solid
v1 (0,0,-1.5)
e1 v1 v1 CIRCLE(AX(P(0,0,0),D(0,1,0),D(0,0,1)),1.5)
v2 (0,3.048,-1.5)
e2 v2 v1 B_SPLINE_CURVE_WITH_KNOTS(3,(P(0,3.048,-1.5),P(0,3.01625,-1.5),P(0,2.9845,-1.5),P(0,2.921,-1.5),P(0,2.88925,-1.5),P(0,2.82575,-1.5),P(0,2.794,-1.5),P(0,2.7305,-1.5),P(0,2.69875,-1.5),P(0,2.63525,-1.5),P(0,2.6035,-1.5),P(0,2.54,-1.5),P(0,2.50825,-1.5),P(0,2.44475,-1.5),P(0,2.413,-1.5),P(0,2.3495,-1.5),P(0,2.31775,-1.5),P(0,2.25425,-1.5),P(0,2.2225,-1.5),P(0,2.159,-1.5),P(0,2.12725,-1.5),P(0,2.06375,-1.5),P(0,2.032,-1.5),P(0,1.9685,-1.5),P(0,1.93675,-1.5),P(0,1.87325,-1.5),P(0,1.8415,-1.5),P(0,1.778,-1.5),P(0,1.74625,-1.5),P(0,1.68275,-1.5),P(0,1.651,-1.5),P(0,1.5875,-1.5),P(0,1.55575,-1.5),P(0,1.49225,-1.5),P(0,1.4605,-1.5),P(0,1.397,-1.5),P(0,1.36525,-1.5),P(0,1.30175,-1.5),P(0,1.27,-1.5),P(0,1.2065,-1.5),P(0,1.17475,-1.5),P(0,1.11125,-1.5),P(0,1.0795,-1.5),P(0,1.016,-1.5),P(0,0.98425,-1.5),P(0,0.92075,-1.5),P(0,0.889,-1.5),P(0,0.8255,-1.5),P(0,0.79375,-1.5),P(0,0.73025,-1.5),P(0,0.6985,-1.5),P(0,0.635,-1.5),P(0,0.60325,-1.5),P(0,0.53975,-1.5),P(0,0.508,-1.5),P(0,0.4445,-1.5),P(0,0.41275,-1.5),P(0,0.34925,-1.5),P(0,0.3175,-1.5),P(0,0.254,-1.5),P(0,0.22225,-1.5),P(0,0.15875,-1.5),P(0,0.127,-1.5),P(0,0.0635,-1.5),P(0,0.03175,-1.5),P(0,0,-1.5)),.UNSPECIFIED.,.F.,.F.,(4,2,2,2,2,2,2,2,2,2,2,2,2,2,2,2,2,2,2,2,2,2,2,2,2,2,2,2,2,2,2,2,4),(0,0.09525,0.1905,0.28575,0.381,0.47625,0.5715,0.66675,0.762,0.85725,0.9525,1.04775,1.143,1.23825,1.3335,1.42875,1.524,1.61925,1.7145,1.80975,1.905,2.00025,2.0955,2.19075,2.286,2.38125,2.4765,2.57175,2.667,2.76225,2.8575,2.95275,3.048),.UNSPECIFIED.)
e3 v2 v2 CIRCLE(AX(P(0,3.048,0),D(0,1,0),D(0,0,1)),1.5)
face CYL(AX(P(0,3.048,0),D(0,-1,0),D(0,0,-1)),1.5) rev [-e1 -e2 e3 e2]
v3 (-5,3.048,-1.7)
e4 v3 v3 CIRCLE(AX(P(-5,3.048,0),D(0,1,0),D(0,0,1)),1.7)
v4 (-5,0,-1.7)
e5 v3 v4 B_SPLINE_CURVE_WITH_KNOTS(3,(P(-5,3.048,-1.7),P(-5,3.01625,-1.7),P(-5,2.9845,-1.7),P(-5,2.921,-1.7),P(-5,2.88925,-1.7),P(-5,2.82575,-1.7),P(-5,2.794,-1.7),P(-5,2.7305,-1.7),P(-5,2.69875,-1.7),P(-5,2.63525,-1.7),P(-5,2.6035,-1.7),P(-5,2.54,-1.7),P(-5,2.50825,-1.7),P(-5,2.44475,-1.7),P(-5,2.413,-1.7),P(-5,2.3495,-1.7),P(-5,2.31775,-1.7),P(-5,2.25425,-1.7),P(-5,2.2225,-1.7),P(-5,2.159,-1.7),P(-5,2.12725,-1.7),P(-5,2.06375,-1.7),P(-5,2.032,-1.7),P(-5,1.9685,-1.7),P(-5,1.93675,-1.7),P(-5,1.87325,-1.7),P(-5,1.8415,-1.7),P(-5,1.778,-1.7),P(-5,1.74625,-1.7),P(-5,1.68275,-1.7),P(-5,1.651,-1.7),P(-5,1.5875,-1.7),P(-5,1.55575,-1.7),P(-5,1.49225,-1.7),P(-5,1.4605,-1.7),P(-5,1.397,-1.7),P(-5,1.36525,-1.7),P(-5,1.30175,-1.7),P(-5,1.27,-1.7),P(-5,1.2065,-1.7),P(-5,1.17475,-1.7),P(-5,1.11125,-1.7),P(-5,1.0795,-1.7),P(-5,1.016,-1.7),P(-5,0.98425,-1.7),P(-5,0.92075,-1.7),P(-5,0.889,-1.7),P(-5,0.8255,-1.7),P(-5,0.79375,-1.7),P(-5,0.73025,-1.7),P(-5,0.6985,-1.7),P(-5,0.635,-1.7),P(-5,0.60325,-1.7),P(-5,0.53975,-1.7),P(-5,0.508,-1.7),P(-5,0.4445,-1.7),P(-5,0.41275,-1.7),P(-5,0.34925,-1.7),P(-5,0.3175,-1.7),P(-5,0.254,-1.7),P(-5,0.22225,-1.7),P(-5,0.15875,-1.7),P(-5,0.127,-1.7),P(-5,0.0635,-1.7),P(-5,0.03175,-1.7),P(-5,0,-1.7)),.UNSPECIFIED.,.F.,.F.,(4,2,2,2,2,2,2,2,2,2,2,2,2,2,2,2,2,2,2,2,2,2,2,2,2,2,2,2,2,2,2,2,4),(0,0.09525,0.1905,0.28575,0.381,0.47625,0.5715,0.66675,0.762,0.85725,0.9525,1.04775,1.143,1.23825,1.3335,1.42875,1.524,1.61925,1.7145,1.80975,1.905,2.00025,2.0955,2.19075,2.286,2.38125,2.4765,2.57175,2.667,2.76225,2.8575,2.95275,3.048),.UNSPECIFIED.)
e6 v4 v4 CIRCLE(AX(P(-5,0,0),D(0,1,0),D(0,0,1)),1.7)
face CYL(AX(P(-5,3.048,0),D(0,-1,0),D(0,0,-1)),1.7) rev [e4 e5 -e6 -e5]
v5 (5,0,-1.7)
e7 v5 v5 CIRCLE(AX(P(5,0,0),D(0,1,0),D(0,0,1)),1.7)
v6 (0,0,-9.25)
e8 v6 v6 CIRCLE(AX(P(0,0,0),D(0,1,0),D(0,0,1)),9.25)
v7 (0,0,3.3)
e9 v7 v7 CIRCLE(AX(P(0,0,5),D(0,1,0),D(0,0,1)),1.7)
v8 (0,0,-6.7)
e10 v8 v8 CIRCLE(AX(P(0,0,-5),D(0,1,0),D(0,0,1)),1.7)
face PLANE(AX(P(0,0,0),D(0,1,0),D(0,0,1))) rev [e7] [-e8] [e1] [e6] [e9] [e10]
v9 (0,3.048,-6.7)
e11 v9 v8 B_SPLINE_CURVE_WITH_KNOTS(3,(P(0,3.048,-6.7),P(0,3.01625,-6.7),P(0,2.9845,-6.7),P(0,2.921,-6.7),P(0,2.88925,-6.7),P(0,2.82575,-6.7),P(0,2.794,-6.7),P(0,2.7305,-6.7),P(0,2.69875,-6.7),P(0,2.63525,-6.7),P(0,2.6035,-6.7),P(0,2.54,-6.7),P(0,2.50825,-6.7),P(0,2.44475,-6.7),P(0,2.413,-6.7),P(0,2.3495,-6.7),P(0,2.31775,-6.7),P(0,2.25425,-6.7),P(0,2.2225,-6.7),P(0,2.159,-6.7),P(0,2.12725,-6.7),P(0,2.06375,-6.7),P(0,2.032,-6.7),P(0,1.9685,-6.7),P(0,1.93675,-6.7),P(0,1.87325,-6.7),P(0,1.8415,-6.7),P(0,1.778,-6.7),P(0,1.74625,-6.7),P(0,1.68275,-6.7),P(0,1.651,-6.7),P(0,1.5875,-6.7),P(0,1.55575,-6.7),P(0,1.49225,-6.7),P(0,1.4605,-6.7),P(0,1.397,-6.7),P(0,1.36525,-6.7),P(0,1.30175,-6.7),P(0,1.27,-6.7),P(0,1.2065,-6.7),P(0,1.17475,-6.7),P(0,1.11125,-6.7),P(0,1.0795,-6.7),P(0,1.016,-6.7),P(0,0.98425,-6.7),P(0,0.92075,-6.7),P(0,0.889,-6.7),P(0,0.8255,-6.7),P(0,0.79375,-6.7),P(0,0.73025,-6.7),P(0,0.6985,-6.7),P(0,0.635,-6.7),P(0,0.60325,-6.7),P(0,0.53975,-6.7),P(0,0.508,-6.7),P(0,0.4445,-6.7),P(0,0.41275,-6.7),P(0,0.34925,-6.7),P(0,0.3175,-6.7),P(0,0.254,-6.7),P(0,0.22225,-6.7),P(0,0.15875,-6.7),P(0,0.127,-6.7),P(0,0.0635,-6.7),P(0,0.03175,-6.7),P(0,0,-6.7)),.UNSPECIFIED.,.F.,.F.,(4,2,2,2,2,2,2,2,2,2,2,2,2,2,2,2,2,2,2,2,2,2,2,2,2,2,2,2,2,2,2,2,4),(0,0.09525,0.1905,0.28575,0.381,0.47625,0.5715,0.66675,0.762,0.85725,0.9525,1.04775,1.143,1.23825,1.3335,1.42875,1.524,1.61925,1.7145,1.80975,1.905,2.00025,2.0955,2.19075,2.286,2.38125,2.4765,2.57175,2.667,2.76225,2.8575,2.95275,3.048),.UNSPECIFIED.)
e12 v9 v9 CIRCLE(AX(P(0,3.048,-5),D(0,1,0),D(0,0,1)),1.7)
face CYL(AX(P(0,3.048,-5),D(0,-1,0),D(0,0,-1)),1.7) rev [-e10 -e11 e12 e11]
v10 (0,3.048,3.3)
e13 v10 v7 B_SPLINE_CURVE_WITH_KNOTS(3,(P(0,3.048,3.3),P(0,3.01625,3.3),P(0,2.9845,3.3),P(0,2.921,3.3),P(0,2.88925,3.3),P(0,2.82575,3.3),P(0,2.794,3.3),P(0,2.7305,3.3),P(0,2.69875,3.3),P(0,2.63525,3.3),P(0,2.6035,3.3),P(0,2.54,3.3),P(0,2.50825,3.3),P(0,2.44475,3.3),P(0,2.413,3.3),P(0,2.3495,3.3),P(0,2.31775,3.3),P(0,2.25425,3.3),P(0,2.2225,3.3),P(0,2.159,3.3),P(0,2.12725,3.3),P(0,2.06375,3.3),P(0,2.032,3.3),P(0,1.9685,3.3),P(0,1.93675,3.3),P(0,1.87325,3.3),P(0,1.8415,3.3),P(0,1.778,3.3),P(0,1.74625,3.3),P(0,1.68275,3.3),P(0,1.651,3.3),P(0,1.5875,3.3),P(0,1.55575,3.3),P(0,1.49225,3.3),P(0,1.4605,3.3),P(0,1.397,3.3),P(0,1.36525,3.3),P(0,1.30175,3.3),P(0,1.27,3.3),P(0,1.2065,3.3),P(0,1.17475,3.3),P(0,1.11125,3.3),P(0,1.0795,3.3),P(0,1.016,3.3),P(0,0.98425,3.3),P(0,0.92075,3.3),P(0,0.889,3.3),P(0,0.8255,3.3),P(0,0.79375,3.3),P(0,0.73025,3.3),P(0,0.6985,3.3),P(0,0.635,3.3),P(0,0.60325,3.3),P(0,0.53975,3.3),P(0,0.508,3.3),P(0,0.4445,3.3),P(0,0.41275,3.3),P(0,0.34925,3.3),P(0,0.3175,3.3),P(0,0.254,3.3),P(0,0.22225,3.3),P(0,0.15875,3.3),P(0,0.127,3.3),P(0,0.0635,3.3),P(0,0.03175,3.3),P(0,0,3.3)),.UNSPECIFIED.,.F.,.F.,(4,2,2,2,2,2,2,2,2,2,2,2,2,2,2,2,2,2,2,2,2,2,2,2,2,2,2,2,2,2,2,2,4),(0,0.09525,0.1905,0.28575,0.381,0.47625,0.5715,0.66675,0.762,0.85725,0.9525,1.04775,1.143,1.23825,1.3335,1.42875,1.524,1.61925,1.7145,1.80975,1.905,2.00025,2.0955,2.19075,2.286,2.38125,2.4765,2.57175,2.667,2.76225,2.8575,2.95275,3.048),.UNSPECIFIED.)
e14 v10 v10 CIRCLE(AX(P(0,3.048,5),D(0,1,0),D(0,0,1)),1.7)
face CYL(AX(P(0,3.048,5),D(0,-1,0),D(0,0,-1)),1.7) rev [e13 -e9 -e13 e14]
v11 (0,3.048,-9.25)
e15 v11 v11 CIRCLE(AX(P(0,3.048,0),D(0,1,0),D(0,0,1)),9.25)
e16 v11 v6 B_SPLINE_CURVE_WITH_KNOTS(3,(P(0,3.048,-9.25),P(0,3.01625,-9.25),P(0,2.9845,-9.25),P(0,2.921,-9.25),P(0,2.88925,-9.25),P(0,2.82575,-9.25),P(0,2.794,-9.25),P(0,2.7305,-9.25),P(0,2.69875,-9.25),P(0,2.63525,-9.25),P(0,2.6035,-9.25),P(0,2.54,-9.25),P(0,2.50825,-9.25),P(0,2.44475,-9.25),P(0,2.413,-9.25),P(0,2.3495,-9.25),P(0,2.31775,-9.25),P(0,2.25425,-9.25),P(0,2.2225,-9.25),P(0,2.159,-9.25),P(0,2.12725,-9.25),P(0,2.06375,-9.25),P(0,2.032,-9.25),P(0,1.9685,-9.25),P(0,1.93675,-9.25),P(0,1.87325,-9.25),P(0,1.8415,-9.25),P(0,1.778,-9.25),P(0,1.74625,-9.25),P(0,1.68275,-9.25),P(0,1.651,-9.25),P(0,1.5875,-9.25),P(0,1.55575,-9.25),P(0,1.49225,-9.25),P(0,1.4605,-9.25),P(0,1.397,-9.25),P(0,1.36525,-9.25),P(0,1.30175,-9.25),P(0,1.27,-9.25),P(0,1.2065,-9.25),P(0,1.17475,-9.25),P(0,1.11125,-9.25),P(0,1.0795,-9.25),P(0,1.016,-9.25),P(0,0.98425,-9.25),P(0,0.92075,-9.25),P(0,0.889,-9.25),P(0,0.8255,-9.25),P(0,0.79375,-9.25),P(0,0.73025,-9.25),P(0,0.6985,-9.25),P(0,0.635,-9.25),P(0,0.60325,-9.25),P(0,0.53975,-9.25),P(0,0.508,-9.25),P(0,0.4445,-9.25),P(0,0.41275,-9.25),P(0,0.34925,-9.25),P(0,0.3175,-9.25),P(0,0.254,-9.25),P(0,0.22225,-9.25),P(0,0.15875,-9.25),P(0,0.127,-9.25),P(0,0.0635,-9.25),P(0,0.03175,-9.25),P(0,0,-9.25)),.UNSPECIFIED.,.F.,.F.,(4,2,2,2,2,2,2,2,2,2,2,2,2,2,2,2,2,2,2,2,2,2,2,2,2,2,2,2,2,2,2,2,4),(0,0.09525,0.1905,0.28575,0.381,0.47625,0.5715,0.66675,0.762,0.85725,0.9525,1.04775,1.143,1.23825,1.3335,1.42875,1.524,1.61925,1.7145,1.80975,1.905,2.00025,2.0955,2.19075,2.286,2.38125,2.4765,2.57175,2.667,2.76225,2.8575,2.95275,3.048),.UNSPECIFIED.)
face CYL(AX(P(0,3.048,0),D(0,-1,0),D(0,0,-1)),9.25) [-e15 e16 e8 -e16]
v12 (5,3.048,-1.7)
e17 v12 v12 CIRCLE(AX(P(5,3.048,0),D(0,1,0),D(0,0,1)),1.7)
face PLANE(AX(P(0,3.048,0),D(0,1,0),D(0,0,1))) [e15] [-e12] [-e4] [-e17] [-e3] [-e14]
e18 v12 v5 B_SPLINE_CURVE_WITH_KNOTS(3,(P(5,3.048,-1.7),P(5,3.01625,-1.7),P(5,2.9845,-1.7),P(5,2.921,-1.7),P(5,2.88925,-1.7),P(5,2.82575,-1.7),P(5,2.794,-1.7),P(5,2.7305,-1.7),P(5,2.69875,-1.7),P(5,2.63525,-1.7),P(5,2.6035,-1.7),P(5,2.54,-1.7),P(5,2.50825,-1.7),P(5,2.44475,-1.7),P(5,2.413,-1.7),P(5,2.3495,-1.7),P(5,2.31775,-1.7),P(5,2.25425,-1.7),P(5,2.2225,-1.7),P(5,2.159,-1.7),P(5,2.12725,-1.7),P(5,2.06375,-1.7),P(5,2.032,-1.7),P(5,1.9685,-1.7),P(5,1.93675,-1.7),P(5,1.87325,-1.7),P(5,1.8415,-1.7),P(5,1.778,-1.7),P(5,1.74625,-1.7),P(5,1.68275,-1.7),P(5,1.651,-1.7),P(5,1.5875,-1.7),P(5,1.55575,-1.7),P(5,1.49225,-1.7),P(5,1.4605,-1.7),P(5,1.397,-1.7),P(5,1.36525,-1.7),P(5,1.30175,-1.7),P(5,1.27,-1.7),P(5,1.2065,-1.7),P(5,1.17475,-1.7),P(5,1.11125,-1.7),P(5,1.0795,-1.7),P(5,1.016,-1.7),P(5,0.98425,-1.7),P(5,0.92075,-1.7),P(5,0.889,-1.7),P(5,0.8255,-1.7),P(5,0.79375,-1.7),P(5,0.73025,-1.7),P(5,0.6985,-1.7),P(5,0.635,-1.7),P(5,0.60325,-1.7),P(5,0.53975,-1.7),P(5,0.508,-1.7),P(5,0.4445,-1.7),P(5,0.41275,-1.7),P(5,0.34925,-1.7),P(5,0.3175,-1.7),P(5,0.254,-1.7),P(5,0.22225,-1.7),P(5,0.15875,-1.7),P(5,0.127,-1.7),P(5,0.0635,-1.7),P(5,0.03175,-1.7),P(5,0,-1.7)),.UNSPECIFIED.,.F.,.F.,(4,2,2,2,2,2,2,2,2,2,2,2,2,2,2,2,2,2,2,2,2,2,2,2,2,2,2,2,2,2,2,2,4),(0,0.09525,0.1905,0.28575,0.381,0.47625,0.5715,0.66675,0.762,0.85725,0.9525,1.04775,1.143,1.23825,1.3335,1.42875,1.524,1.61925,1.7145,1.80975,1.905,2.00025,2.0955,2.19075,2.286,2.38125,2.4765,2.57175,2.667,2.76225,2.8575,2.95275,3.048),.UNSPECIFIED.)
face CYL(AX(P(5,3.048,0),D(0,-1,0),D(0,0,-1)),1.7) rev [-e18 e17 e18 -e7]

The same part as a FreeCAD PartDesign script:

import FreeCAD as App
import Part
import Sketcher
from FreeCAD import Vector
Q = App.Units.Quantity

doc = App.newDocument("Part")
body = doc.addObject("PartDesign::Body", "Body")

# Sketch on XZ plane
sketch1 = doc.addObject("Sketcher::SketchObject", "Sketch")
body.addObject(sketch1)
sketch1.AttachmentSupport = (doc.XZ_Plane, [""])
sketch1.MapMode = "FlatFace"
sketch1.addGeometry(Part.Circle(Vector(0, 0, 0), Vector(0, 0, 1), 9.2), False)
sketch1.addGeometry(Part.Circle(Vector(0, 5, 0), Vector(0, 0, 1), 1.7), False)
sketch1.addGeometry(Part.Circle(Vector(0, 0, 0), Vector(0, 0, 1), 1.5), False)
sketch1.addGeometry(Part.Circle(Vector(5, 0, 0), Vector(0, 0, 1), 1.7), False)
sketch1.addGeometry(Part.Circle(Vector(-5, 0, 0), Vector(0, 0, 1), 1.7), False)
sketch1.addGeometry(Part.Circle(Vector(0, -5, 0), Vector(0, 0, 1), 1.7), False)
sketch1.addConstraint(Sketcher.Constraint("Coincident", 0, 3, -1, 1))
sketch1.addConstraint(Sketcher.Constraint("Coincident", 2, 3, -1, 1))
sketch1.addConstraint(Sketcher.Constraint("Equal", 1, 3))
sketch1.addConstraint(Sketcher.Constraint("Equal", 3, 4))
sketch1.addConstraint(Sketcher.Constraint("Equal", 4, 5))
sketch1.addConstraint(Sketcher.Constraint("Symmetric", 3, 3, 4, 3, -1, 1))
sketch1.addConstraint(Sketcher.Constraint("Symmetric", 1, 3, 5, 3, -1, 1))
sketch1.addConstraint(Sketcher.Constraint("PointOnObject", 1, 3, -2))
sketch1.addConstraint(Sketcher.Constraint("PointOnObject", 3, 3, -1))
sketch1.addConstraint(Sketcher.Constraint("Diameter", 2, Q("3 mm")))
sketch1.addConstraint(Sketcher.Constraint("Diameter", 0, Q("18.5 mm")))
sketch1.addConstraint(Sketcher.Constraint("Diameter", 1, Q("3.4 mm")))
sketch1.addConstraint(Sketcher.Constraint("DistanceY", -1, 1, 1, 3, Q("5 mm")))
sketch1.addConstraint(Sketcher.Constraint("DistanceX", -1, 1, 3, 3, Q("5 mm")))
pad1 = doc.addObject("PartDesign::Pad", "Pad")
body.addObject(pad1)
pad1.Profile = sketch1
pad1.Length = 3.048
pad1.Reversed = True

doc.recompute()
